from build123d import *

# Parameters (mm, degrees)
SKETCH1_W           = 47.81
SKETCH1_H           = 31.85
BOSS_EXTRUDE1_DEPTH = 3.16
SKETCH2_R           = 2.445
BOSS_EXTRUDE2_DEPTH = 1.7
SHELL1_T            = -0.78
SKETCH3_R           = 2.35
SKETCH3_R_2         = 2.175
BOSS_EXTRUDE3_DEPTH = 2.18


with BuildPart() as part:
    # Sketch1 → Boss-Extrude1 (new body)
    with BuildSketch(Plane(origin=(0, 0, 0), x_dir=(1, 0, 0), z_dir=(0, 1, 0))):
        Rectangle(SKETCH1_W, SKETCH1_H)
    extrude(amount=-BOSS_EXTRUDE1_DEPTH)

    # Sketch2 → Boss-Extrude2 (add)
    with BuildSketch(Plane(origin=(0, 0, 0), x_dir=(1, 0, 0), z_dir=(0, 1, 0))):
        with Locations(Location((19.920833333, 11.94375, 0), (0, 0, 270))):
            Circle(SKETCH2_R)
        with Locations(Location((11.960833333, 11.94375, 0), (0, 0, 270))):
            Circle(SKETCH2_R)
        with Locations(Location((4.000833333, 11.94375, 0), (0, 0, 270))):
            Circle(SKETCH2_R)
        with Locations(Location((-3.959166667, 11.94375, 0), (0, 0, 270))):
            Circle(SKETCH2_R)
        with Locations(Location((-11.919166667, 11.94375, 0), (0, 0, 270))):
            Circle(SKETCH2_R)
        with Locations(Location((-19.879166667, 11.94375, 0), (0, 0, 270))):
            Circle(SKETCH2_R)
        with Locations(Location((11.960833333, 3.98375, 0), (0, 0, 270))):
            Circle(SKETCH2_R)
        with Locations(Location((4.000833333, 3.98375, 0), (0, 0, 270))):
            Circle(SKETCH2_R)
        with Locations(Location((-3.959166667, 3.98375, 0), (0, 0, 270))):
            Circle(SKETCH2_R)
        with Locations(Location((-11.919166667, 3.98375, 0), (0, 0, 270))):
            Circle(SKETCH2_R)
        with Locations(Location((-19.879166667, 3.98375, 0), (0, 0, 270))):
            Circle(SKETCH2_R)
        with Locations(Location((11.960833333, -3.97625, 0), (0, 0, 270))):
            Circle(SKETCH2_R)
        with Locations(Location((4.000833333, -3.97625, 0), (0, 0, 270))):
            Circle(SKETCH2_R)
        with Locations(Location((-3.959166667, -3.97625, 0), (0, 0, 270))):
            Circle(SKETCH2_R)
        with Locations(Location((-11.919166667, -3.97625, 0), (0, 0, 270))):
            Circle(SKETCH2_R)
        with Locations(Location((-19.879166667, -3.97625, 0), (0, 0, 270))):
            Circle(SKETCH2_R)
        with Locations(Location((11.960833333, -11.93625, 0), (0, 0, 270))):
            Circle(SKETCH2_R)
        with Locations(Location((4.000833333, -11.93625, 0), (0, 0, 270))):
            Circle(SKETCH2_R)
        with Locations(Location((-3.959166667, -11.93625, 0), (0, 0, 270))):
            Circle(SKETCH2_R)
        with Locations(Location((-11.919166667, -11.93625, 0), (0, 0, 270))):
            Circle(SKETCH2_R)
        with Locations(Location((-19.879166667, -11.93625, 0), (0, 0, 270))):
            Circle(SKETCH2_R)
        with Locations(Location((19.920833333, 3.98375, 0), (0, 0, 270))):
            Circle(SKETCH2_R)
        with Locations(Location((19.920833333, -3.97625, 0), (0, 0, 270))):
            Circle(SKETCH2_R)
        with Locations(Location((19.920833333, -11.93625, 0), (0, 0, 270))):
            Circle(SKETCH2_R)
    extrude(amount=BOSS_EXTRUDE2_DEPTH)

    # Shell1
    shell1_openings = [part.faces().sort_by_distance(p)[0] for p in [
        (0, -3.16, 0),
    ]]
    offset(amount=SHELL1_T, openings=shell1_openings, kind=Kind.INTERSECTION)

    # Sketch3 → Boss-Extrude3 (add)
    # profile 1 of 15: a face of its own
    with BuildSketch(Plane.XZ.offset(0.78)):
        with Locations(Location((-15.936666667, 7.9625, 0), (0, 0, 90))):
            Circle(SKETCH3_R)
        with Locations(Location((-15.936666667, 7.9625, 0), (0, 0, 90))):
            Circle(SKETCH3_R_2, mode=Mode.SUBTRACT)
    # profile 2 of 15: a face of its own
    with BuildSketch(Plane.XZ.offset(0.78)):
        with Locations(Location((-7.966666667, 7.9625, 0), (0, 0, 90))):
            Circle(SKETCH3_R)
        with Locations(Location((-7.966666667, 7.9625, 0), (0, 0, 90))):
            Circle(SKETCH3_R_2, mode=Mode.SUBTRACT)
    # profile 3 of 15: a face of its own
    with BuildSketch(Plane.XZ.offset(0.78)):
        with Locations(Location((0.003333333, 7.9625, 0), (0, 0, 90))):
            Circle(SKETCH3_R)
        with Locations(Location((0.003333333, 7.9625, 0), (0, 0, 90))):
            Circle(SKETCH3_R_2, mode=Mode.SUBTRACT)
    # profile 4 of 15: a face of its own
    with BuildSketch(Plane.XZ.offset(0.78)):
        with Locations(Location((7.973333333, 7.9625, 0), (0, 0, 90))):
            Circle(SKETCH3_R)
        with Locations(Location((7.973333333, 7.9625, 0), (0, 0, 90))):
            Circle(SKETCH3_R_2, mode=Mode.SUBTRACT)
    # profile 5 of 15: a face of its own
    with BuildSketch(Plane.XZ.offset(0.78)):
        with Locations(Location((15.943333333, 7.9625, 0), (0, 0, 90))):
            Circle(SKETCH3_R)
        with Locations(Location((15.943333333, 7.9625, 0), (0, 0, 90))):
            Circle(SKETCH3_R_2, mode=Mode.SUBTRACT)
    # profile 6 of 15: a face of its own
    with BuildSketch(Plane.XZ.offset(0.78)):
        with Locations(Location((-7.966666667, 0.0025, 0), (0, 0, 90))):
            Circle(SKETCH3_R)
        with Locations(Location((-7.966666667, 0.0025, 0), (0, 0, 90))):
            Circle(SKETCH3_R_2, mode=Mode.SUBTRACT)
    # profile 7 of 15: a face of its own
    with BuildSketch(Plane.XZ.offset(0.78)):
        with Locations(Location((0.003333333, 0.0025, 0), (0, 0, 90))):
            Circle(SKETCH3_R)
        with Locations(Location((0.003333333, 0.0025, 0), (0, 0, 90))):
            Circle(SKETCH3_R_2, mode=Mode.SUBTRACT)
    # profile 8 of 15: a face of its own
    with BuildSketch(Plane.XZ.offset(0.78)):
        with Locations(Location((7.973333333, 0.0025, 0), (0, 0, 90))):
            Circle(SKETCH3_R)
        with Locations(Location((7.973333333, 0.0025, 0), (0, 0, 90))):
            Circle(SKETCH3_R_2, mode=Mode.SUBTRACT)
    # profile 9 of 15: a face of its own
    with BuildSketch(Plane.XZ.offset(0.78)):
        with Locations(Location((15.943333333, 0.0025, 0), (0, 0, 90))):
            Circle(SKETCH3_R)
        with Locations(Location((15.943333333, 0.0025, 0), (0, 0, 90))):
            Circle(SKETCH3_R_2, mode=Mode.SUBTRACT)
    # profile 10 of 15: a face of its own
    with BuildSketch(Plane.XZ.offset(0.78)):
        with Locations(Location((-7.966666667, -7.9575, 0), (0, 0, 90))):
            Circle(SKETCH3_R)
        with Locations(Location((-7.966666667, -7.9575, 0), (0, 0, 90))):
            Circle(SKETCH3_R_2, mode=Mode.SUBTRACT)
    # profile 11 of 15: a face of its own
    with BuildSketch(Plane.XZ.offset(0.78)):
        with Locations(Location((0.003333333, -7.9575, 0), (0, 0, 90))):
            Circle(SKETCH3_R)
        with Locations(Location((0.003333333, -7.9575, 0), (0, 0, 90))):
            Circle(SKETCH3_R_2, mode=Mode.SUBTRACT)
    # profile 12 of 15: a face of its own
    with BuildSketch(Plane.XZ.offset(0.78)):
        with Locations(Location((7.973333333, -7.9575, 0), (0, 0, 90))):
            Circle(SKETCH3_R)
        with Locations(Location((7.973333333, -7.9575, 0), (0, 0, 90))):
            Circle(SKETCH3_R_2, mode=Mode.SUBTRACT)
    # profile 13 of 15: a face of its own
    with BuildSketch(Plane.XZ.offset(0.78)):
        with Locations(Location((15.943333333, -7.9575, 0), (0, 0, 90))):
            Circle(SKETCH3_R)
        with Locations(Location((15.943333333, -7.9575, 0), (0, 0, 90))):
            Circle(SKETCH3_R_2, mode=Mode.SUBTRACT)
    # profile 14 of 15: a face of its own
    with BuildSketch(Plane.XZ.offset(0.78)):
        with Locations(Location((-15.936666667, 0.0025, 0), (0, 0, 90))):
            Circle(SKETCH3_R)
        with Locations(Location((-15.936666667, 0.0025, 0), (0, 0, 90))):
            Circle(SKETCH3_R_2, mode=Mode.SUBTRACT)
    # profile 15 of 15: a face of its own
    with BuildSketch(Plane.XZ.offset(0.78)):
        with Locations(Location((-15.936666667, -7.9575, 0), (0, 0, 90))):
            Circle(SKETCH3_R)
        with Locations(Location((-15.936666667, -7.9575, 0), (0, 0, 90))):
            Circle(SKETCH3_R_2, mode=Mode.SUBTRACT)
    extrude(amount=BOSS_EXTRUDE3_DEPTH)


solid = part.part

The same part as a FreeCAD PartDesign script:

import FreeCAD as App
import Part
import Sketcher
Q = App.Units.Quantity


def faces_at(feature, points):
    """Names of the faces that lie closest to the given points."""
    faces = feature.Shape.Faces
    near = lambda p: min(range(len(faces)), key=lambda i: faces[i].distToShape(Part.Vertex(*p))[0])
    return sorted({f"Face{near(p) + 1}" for p in points})


def add_polygon(sketch, points):
    """Adds a closed chain of lines whose ends are joined by coincident constraints."""
    first, n = sketch.GeometryCount, len(points)
    for a, b in zip(points, points[1:] + points[:1]):
        sketch.addGeometry(Part.LineSegment(App.Vector(*a, 0), App.Vector(*b, 0)), False)
    for i in range(n):
        sketch.addConstraint(Sketcher.Constraint("Coincident", first + i, 2, first + (i + 1) % n, 1))

doc = App.newDocument("Part")
body = doc.addObject("PartDesign::Body", "Body")

# Sketch on XZ plane
sketch1 = body.newObject("Sketcher::SketchObject", "Sketch")
sketch1.AttachmentSupport = (doc.getObject("XZ_Plane"), [""])
sketch1.MapMode = "FlatFace"
add_polygon(sketch1, [(-24, -16), (-24, 16), (24, 16), (24, -16)])  # lines 0-3
sketch1.addConstraint([
    Sketcher.Constraint("Vertical", 0),
    Sketcher.Constraint("Horizontal", 1),
    Sketcher.Constraint("Vertical", 2),
    Sketcher.Constraint("Horizontal", 3),
    Sketcher.Constraint("Symmetric", 0, 2, 2, 2, -1, 1),
    Sketcher.Constraint("DistanceX", 1, 1, 1, 2, Q("47.81 mm")),
    Sketcher.Constraint("DistanceY", 0, 1, 0, 2, Q("31.85 mm")),
])
pad1 = body.newObject("PartDesign::Pad", "Pad")
pad1.Profile = sketch1
pad1.Length = 3.16

# Sketch on XZ plane
sketch2 = body.newObject("Sketcher::SketchObject", "Sketch001")
sketch2.AttachmentSupport = (doc.getObject("XZ_Plane"), [""])
sketch2.MapMode = "FlatFace"
sketch2.addGeometry([
    Part.Circle(App.Vector(19.9, -11.9, 0), App.Vector(0, 0, 1), 2.4),  # 0
    Part.Circle(App.Vector(12, -11.9, 0), App.Vector(0, 0, 1), 2.4),  # 1
    Part.Circle(App.Vector(4, -11.9, 0), App.Vector(0, 0, 1), 2.4),  # 2
    Part.Circle(App.Vector(-4, -11.9, 0), App.Vector(0, 0, 1), 2.4),  # 3
    Part.Circle(App.Vector(-11.9, -11.9, 0), App.Vector(0, 0, 1), 2.4),  # 4
    Part.Circle(App.Vector(-19.9, -11.9, 0), App.Vector(0, 0, 1), 2.4),  # 5
    Part.Circle(App.Vector(12, -4, 0), App.Vector(0, 0, 1), 2.4),  # 6
    Part.Circle(App.Vector(4, -4, 0), App.Vector(0, 0, 1), 2.4),  # 7
    Part.Circle(App.Vector(-4, -4, 0), App.Vector(0, 0, 1), 2.4),  # 8
    Part.Circle(App.Vector(-11.9, -4, 0), App.Vector(0, 0, 1), 2.4),  # 9
    Part.Circle(App.Vector(-19.9, -4, 0), App.Vector(0, 0, 1), 2.4),  # 10
    Part.Circle(App.Vector(12, 4, 0), App.Vector(0, 0, 1), 2.4),  # 11
    Part.Circle(App.Vector(4, 4, 0), App.Vector(0, 0, 1), 2.4),  # 12
    Part.Circle(App.Vector(-4, 4, 0), App.Vector(0, 0, 1), 2.4),  # 13
    Part.Circle(App.Vector(-11.9, 4, 0), App.Vector(0, 0, 1), 2.4),  # 14
    Part.Circle(App.Vector(-19.9, 4, 0), App.Vector(0, 0, 1), 2.4),  # 15
    Part.Circle(App.Vector(12, 11.9, 0), App.Vector(0, 0, 1), 2.4),  # 16
    Part.Circle(App.Vector(4, 11.9, 0), App.Vector(0, 0, 1), 2.4),  # 17
    Part.Circle(App.Vector(-4, 11.9, 0), App.Vector(0, 0, 1), 2.4),  # 18
    Part.Circle(App.Vector(-11.9, 11.9, 0), App.Vector(0, 0, 1), 2.4),  # 19
    Part.Circle(App.Vector(-19.9, 11.9, 0), App.Vector(0, 0, 1), 2.4),  # 20
    Part.Circle(App.Vector(19.9, -4, 0), App.Vector(0, 0, 1), 2.4),  # 21
    Part.Circle(App.Vector(19.9, 4, 0), App.Vector(0, 0, 1), 2.4),  # 22
    Part.Circle(App.Vector(19.9, 11.9, 0), App.Vector(0, 0, 1), 2.4),  # 23
], False)
sketch2.addConstraint([
    Sketcher.Constraint("Equal", 0, 1),
    Sketcher.Constraint("Equal", 1, 2),
    Sketcher.Constraint("Equal", 2, 3),
    Sketcher.Constraint("Equal", 3, 4),
    Sketcher.Constraint("Equal", 4, 5),
    Sketcher.Constraint("Equal", 5, 6),
    Sketcher.Constraint("Equal", 6, 7),
    Sketcher.Constraint("Equal", 7, 8),
    Sketcher.Constraint("Equal", 8, 9),
    Sketcher.Constraint("Equal", 9, 10),
    Sketcher.Constraint("Equal", 10, 11),
    Sketcher.Constraint("Equal", 11, 12),
    Sketcher.Constraint("Equal", 12, 13),
    Sketcher.Constraint("Equal", 13, 14),
    Sketcher.Constraint("Equal", 14, 15),
    Sketcher.Constraint("Equal", 15, 16),
    Sketcher.Constraint("Equal", 16, 17),
    Sketcher.Constraint("Equal", 17, 18),
    Sketcher.Constraint("Equal", 18, 19),
    Sketcher.Constraint("Equal", 19, 20),
    Sketcher.Constraint("Equal", 20, 21),
    Sketcher.Constraint("Equal", 21, 22),
    Sketcher.Constraint("Equal", 22, 23),
    Sketcher.Constraint("Horizontal", 0, 3, 1, 3),
    Sketcher.Constraint("Horizontal", 1, 3, 2, 3),
    Sketcher.Constraint("Horizontal", 2, 3, 3, 3),
    Sketcher.Constraint("Horizontal", 3, 3, 4, 3),
    Sketcher.Constraint("Horizontal", 4, 3, 5, 3),
    Sketcher.Constraint("Horizontal", 6, 3, 7, 3),
    Sketcher.Constraint("Horizontal", 7, 3, 8, 3),
    Sketcher.Constraint("Horizontal", 8, 3, 9, 3),
    Sketcher.Constraint("Horizontal", 9, 3, 10, 3),
    Sketcher.Constraint("Horizontal", 11, 3, 12, 3),
    Sketcher.Constraint("Horizontal", 12, 3, 13, 3),
    Sketcher.Constraint("Horizontal", 13, 3, 14, 3),
    Sketcher.Constraint("Horizontal", 14, 3, 15, 3),
    Sketcher.Constraint("Horizontal", 16, 3, 17, 3),
    Sketcher.Constraint("Horizontal", 17, 3, 18, 3),
    Sketcher.Constraint("Horizontal", 18, 3, 19, 3),
    Sketcher.Constraint("Horizontal", 19, 3, 20, 3),
    Sketcher.Constraint("Horizontal", 10, 3, 21, 3),
    Sketcher.Constraint("Horizontal", 15, 3, 22, 3),
    Sketcher.Constraint("Horizontal", 20, 3, 23, 3),
    Sketcher.Constraint("Vertical", 1, 3, 6, 3),
    Sketcher.Constraint("Vertical", 2, 3, 7, 3),
    Sketcher.Constraint("Vertical", 3, 3, 8, 3),
    Sketcher.Constraint("Vertical", 4, 3, 9, 3),
    Sketcher.Constraint("Vertical", 5, 3, 10, 3),
    Sketcher.Constraint("Vertical", 6, 3, 11, 3),
    Sketcher.Constraint("Vertical", 7, 3, 12, 3),
    Sketcher.Constraint("Vertical", 8, 3, 13, 3),
    Sketcher.Constraint("Vertical", 9, 3, 14, 3),
    Sketcher.Constraint("Vertical", 10, 3, 15, 3),
    Sketcher.Constraint("Vertical", 11, 3, 16, 3),
    Sketcher.Constraint("Vertical", 12, 3, 17, 3),
    Sketcher.Constraint("Vertical", 13, 3, 18, 3),
    Sketcher.Constraint("Vertical", 14, 3, 19, 3),
    Sketcher.Constraint("Vertical", 15, 3, 20, 3),
    Sketcher.Constraint("Vertical", 0, 3, 21, 3),
    Sketcher.Constraint("Vertical", 21, 3, 22, 3),
    Sketcher.Constraint("Vertical", 22, 3, 23, 3),
    Sketcher.Constraint("Diameter", 0, Q("4.89 mm")),
    Sketcher.Constraint("DistanceX", 5, 3, 0, 3, Q("39.8 mm")),
    Sketcher.Constraint("DistanceX", 1, 3, 0, 3, Q("7.96 mm")),
    Sketcher.Constraint("DistanceX", 2, 3, 1, 3, Q("7.96 mm")),
    Sketcher.Constraint("DistanceX", 3, 3, 2, 3, Q("7.96 mm")),
    Sketcher.Constraint("DistanceX", 4, 3, 3, 3, Q("7.96 mm")),
    Sketcher.Constraint("DistanceY", 1, 3, 6, 3, Q("7.96 mm")),
    Sketcher.Constraint("DistanceY", 6, 3, 11, 3, Q("7.96 mm")),
    Sketcher.Constraint("DistanceY", 11, 3, 16, 3, Q("7.96 mm")),
    Sketcher.Constraint("DistanceY", 0, 3, -1, 1, Q("11.94375 mm")),
    Sketcher.Constraint("DistanceX", -1, 1, 0, 3, Q("19.920833 mm")),
])
pad2 = body.newObject("PartDesign::Pad", "Pad001")
pad2.Profile = sketch2
pad2.Length = 1.7
pad2.Reversed = True
doc.recompute()

thickness = body.newObject("PartDesign::Thickness", "Thickness")
thickness.Base = (pad2, faces_at(pad2, [(0, -3.16, 0)]))
thickness.Value = 0.78
thickness.Reversed = True
thickness.Join = "Intersection"

# Sketch on XZ plane
sketch3 = body.newObject("Sketcher::SketchObject", "Sketch002")
sketch3.AttachmentSupport = (doc.getObject("XZ_Plane"), [""])
sketch3.MapMode = "FlatFace"
sketch3.AttachmentOffset = App.Placement(App.Vector(0, 0, 0.78), App.Rotation())
sketch3.addGeometry([
    Part.Circle(App.Vector(-15.9, 8, 0), App.Vector(0, 0, 1), 2.4),  # 0
    Part.Circle(App.Vector(-15.9, 8, 0), App.Vector(0, 0, 1), 2.2),  # 1
    Part.Circle(App.Vector(-8, 8, 0), App.Vector(0, 0, 1), 2.4),  # 2
    Part.Circle(App.Vector(-8, 8, 0), App.Vector(0, 0, 1), 2.2),  # 3
    Part.Circle(App.Vector(0, 8, 0), App.Vector(0, 0, 1), 2.4),  # 4
    Part.Circle(App.Vector(0, 8, 0), App.Vector(0, 0, 1), 2.2),  # 5
    Part.Circle(App.Vector(8, 8, 0), App.Vector(0, 0, 1), 2.4),  # 6
    Part.Circle(App.Vector(8, 8, 0), App.Vector(0, 0, 1), 2.2),  # 7
    Part.Circle(App.Vector(15.9, 8, 0), App.Vector(0, 0, 1), 2.4),  # 8
    Part.Circle(App.Vector(15.9, 8, 0), App.Vector(0, 0, 1), 2.2),  # 9
    Part.Circle(App.Vector(-8, 0, 0), App.Vector(0, 0, 1), 2.4),  # 10
    Part.Circle(App.Vector(-8, 0, 0), App.Vector(0, 0, 1), 2.2),  # 11
    Part.Circle(App.Vector(0, 0, 0), App.Vector(0, 0, 1), 2.4),  # 12
    Part.Circle(App.Vector(0, 0, 0), App.Vector(0, 0, 1), 2.2),  # 13
    Part.Circle(App.Vector(8, 0, 0), App.Vector(0, 0, 1), 2.4),  # 14
    Part.Circle(App.Vector(8, 0, 0), App.Vector(0, 0, 1), 2.2),  # 15
    Part.Circle(App.Vector(15.9, 0, 0), App.Vector(0, 0, 1), 2.4),  # 16
    Part.Circle(App.Vector(15.9, 0, 0), App.Vector(0, 0, 1), 2.2),  # 17
    Part.Circle(App.Vector(-8, -8, 0), App.Vector(0, 0, 1), 2.4),  # 18
    Part.Circle(App.Vector(-8, -8, 0), App.Vector(0, 0, 1), 2.2),  # 19
    Part.Circle(App.Vector(0, -8, 0), App.Vector(0, 0, 1), 2.4),  # 20
    Part.Circle(App.Vector(0, -8, 0), App.Vector(0, 0, 1), 2.2),  # 21
    Part.Circle(App.Vector(8, -8, 0), App.Vector(0, 0, 1), 2.4),  # 22
    Part.Circle(App.Vector(8, -8, 0), App.Vector(0, 0, 1), 2.2),  # 23
    Part.Circle(App.Vector(15.9, -8, 0), App.Vector(0, 0, 1), 2.4),  # 24
    Part.Circle(App.Vector(15.9, -8, 0), App.Vector(0, 0, 1), 2.2),  # 25
    Part.Circle(App.Vector(-15.9, 0, 0), App.Vector(0, 0, 1), 2.4),  # 26
    Part.Circle(App.Vector(-15.9, 0, 0), App.Vector(0, 0, 1), 2.2),  # 27
    Part.Circle(App.Vector(-15.9, -8, 0), App.Vector(0, 0, 1), 2.4),  # 28
    Part.Circle(App.Vector(-15.9, -8, 0), App.Vector(0, 0, 1), 2.2),  # 29
], False)
sketch3.addConstraint([
    Sketcher.Constraint("Coincident", 1, 3, 0, 3),
    Sketcher.Constraint("Coincident", 3, 3, 2, 3),
    Sketcher.Constraint("Coincident", 5, 3, 4, 3),
    Sketcher.Constraint("Coincident", 7, 3, 6, 3),
    Sketcher.Constraint("Coincident", 9, 3, 8, 3),
    Sketcher.Constraint("Coincident", 11, 3, 10, 3),
    Sketcher.Constraint("Coincident", 13, 3, 12, 3),
    Sketcher.Constraint("Coincident", 15, 3, 14, 3),
    Sketcher.Constraint("Coincident", 17, 3, 16, 3),
    Sketcher.Constraint("Coincident", 19, 3, 18, 3),
    Sketcher.Constraint("Coincident", 21, 3, 20, 3),
    Sketcher.Constraint("Coincident", 23, 3, 22, 3),
    Sketcher.Constraint("Coincident", 25, 3, 24, 3),
    Sketcher.Constraint("Coincident", 27, 3, 26, 3),
    Sketcher.Constraint("Coincident", 29, 3, 28, 3),
    Sketcher.Constraint("Equal", 0, 2),
    Sketcher.Constraint("Equal", 1, 3),
    Sketcher.Constraint("Equal", 2, 4),
    Sketcher.Constraint("Equal", 3, 5),
    Sketcher.Constraint("Equal", 4, 6),
    Sketcher.Constraint("Equal", 5, 7),
    Sketcher.Constraint("Equal", 6, 8),
    Sketcher.Constraint("Equal", 7, 9),
    Sketcher.Constraint("Equal", 8, 10),
    Sketcher.Constraint("Equal", 9, 11),
    Sketcher.Constraint("Equal", 10, 12),
    Sketcher.Constraint("Equal", 11, 13),
    Sketcher.Constraint("Equal", 12, 14),
    Sketcher.Constraint("Equal", 13, 15),
    Sketcher.Constraint("Equal", 14, 16),
    Sketcher.Constraint("Equal", 15, 17),
    Sketcher.Constraint("Equal", 16, 18),
    Sketcher.Constraint("Equal", 17, 19),
    Sketcher.Constraint("Equal", 18, 20),
    Sketcher.Constraint("Equal", 19, 21),
    Sketcher.Constraint("Equal", 20, 22),
    Sketcher.Constraint("Equal", 21, 23),
    Sketcher.Constraint("Equal", 22, 24),
    Sketcher.Constraint("Equal", 23, 25),
    Sketcher.Constraint("Equal", 24, 26),
    Sketcher.Constraint("Equal", 25, 27),
    Sketcher.Constraint("Equal", 26, 28),
    Sketcher.Constraint("Equal", 27, 29),
    Sketcher.Constraint("Horizontal", 1, 3, 2, 3),
    Sketcher.Constraint("Horizontal", 3, 3, 4, 3),
    Sketcher.Constraint("Horizontal", 5, 3, 6, 3),
    Sketcher.Constraint("Horizontal", 7, 3, 8, 3),
    Sketcher.Constraint("Horizontal", 11, 3, 12, 3),
    Sketcher.Constraint("Horizontal", 13, 3, 14, 3),
    Sketcher.Constraint("Horizontal", 15, 3, 16, 3),
    Sketcher.Constraint("Horizontal", 19, 3, 20, 3),
    Sketcher.Constraint("Horizontal", 21, 3, 22, 3),
    Sketcher.Constraint("Horizontal", 23, 3, 24, 3),
    Sketcher.Constraint("Horizontal", 17, 3, 26, 3),
    Sketcher.Constraint("Horizontal", 25, 3, 28, 3),
    Sketcher.Constraint("Vertical", 3, 3, 10, 3),
    Sketcher.Constraint("Vertical", 5, 3, 12, 3),
    Sketcher.Constraint("Vertical", 7, 3, 14, 3),
    Sketcher.Constraint("Vertical", 9, 3, 16, 3),
    Sketcher.Constraint("Vertical", 11, 3, 18, 3),
    Sketcher.Constraint("Vertical", 13, 3, 20, 3),
    Sketcher.Constraint("Vertical", 15, 3, 22, 3),
    Sketcher.Constraint("Vertical", 17, 3, 24, 3),
    Sketcher.Constraint("Vertical", 1, 3, 26, 3),
    Sketcher.Constraint("Vertical", 27, 3, 28, 3),
    Sketcher.Constraint("Diameter", 0, Q("4.7 mm")),
    Sketcher.Constraint("Diameter", 1, Q("4.35 mm")),
    Sketcher.Constraint("DistanceX", 0, 3, 2, 3, Q("7.97 mm")),
    Sketcher.Constraint("DistanceX", 2, 3, 4, 3, Q("7.97 mm")),
    Sketcher.Constraint("DistanceX", 4, 3, 6, 3, Q("7.97 mm")),
    Sketcher.Constraint("DistanceX", 6, 3, 8, 3, Q("7.97 mm")),
    Sketcher.Constraint("DistanceY", 10, 3, 2, 3, Q("7.96 mm")),
    Sketcher.Constraint("DistanceY", 18, 3, 10, 3, Q("7.96 mm")),
    Sketcher.Constraint("DistanceY", -1, 1, 0, 3, Q("7.9625 mm")),
    Sketcher.Constraint("DistanceX", 0, 3, -1, 1, Q("15.936667 mm")),
])
pad3 = body.newObject("PartDesign::Pad", "Pad002")
pad3.Profile = sketch3
pad3.Length = 2.18

doc.recompute()
